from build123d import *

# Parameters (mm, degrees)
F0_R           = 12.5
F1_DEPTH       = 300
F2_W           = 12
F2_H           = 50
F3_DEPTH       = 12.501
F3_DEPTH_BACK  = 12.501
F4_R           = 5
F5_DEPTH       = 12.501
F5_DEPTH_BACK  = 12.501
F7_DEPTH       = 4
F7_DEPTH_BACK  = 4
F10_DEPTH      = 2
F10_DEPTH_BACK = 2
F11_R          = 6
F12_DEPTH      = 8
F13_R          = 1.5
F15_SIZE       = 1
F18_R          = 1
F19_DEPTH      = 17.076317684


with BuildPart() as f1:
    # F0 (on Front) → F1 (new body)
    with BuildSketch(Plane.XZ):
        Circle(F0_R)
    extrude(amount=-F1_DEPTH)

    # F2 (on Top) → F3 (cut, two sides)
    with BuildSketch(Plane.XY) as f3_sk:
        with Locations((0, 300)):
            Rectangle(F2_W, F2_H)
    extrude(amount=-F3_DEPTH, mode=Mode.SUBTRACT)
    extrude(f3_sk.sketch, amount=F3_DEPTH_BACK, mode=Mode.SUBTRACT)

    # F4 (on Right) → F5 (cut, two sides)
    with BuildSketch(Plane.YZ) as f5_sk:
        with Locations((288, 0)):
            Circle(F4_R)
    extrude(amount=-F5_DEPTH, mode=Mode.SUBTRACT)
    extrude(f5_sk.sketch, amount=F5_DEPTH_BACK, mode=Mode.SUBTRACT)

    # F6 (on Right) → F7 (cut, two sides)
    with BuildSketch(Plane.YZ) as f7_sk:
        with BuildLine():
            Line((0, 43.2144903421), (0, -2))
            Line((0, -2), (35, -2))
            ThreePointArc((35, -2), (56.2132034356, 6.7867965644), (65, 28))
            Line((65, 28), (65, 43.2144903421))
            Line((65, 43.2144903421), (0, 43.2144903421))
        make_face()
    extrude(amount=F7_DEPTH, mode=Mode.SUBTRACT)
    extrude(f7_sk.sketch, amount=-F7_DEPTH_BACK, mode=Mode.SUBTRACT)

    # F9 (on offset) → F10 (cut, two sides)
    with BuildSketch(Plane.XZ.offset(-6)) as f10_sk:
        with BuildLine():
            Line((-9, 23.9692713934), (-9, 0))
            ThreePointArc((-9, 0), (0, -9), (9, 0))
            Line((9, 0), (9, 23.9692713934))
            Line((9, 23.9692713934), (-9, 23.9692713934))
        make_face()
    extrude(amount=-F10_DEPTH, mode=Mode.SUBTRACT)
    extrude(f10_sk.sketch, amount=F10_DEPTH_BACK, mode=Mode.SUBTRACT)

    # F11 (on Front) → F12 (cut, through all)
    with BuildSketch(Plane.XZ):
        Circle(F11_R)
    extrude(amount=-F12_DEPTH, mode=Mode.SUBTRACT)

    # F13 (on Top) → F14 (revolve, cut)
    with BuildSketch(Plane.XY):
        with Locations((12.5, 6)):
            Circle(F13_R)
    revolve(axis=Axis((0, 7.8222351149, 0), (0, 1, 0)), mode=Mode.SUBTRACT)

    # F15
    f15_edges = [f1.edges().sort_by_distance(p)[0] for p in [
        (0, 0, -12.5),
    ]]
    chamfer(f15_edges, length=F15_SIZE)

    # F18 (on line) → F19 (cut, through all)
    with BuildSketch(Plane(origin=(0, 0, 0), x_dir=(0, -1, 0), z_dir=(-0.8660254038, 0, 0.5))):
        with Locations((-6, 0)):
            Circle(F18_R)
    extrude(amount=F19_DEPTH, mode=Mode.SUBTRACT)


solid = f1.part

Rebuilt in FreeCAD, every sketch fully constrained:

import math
import FreeCAD as App
import Part
import Sketcher
Q = App.Units.Quantity


def edges_at(feature, points):
    """Names of the edges that pass closest to the given points."""
    edges = feature.Shape.Edges
    near = lambda p: min(range(len(edges)), key=lambda i: edges[i].distToShape(Part.Vertex(*p))[0])
    return sorted({f"Edge{near(p) + 1}" for p in points})

doc = App.newDocument("Part")
body = doc.addObject("PartDesign::Body", "Body")

sketch1 = body.newObject("Sketcher::SketchObject", "Sketch")
sketch1.AttachmentSupport = (doc.getObject("XZ_Plane"), [""])
sketch1.MapMode = "FlatFace"
sketch1.addGeometry(Part.Circle(App.Vector(0, 0, 0), App.Vector(0, 0, 1), 12.5), False)
sketch1.addConstraint(Sketcher.Constraint("Coincident", 0, 3, -1, 1))
sketch1.addConstraint(Sketcher.Constraint("Diameter", 0, Q("25 mm")))
pad1 = body.newObject("PartDesign::Pad", "Pad")
pad1.Profile = sketch1
pad1.Length = 300
pad1.Reversed = True

sketch2 = body.newObject("Sketcher::SketchObject", "Sketch001")
sketch2.AttachmentSupport = (doc.getObject("XY_Plane"), [""])
sketch2.MapMode = "FlatFace"
sketch2.addGeometry(Part.LineSegment(App.Vector(-6, 325, 0), App.Vector(-6, 275, 0)), False)
sketch2.addGeometry(Part.LineSegment(App.Vector(-6, 275, 0), App.Vector(6, 275, 0)), False)
sketch2.addGeometry(Part.LineSegment(App.Vector(6, 275, 0), App.Vector(6, 325, 0)), False)
sketch2.addGeometry(Part.LineSegment(App.Vector(6, 325, 0), App.Vector(-6, 325, 0)), False)
sketch2.addConstraint(Sketcher.Constraint("Coincident", 0, 2, 1, 1))
sketch2.addConstraint(Sketcher.Constraint("Coincident", 1, 2, 2, 1))
sketch2.addConstraint(Sketcher.Constraint("Coincident", 2, 2, 3, 1))
sketch2.addConstraint(Sketcher.Constraint("Coincident", 3, 2, 0, 1))
sketch2.addConstraint(Sketcher.Constraint("Vertical", 0))
sketch2.addConstraint(Sketcher.Constraint("Horizontal", 1))
sketch2.addConstraint(Sketcher.Constraint("Vertical", 2))
sketch2.addConstraint(Sketcher.Constraint("Horizontal", 3))
sketch2.addConstraint(Sketcher.Constraint("DistanceX", 1, 1, 1, 2, Q("12 mm")))
sketch2.addConstraint(Sketcher.Constraint("DistanceY", 0, 2, 0, 1, Q("50 mm")))
sketch2.addConstraint(Sketcher.Constraint("DistanceX", 0, 2, -1, 1, Q("6 mm")))
sketch2.addConstraint(Sketcher.Constraint("DistanceY", -1, 1, 0, 2, Q("275 mm")))
pocket1 = body.newObject("PartDesign::Pocket", "Pocket")
pocket1.Profile = sketch2
pocket1.Type = "ThroughAll"
pocket1.Midplane = True

sketch3 = body.newObject("Sketcher::SketchObject", "Sketch002")
sketch3.AttachmentSupport = (doc.getObject("YZ_Plane"), [""])
sketch3.MapMode = "FlatFace"
sketch3.addGeometry(Part.Circle(App.Vector(288, 0, 0), App.Vector(0, 0, 1), 5), False)
sketch3.addConstraint(Sketcher.Constraint("PointOnObject", 0, 3, -1))
sketch3.addConstraint(Sketcher.Constraint("Diameter", 0, Q("10 mm")))
sketch3.addConstraint(Sketcher.Constraint("DistanceX", -1, 1, 0, 3, Q("288 mm")))
pocket2 = body.newObject("PartDesign::Pocket", "Pocket001")
pocket2.Profile = sketch3
pocket2.Type = "ThroughAll"
pocket2.Midplane = True

sketch4 = body.newObject("Sketcher::SketchObject", "Sketch003")
sketch4.AttachmentSupport = (doc.getObject("YZ_Plane"), [""])
sketch4.MapMode = "FlatFace"
sketch4.addGeometry(Part.LineSegment(App.Vector(0, 43.21449, 0), App.Vector(0, -2, 0)), False)
sketch4.addGeometry(Part.LineSegment(App.Vector(0, -2, 0), App.Vector(35, -2, 0)), False)
sketch4.addGeometry(Part.ArcOfCircle(Part.Circle(App.Vector(35, 28, 0), App.Vector(0, 0, 1), 30), math.radians(-90), math.radians(0)), False)
sketch4.addGeometry(Part.LineSegment(App.Vector(65, 28, 0), App.Vector(65, 43.21449, 0)), False)
sketch4.addGeometry(Part.LineSegment(App.Vector(65, 43.21449, 0), App.Vector(0, 43.21449, 0)), False)
sketch4.addConstraint(Sketcher.Constraint("Coincident", 0, 2, 1, 1))
sketch4.addConstraint(Sketcher.Constraint("Tangent", 1, 2, 2, 1))
sketch4.addConstraint(Sketcher.Constraint("Tangent", 2, 2, 3, 1))
sketch4.addConstraint(Sketcher.Constraint("Coincident", 3, 2, 4, 1))
sketch4.addConstraint(Sketcher.Constraint("Coincident", 4, 2, 0, 1))
sketch4.addConstraint(Sketcher.Constraint("Vertical", 0))
sketch4.addConstraint(Sketcher.Constraint("Horizontal", 1))
sketch4.addConstraint(Sketcher.Constraint("Vertical", 3))
sketch4.addConstraint(Sketcher.Constraint("Horizontal", 4))
sketch4.addConstraint(Sketcher.Constraint("PointOnObject", 0, 2, -2))
sketch4.addConstraint(Sketcher.Constraint("Radius", 2, Q("30 mm")))
sketch4.addConstraint(Sketcher.Constraint("DistanceX", 1, 1, 1, 2, Q("35 mm")))
sketch4.addConstraint(Sketcher.Constraint("DistanceY", -1, 1, 2, 3, Q("28 mm")))
sketch4.addConstraint(Sketcher.Constraint("DistanceY", 0, 2, 0, 1, Q("45.21449 mm")))
pocket3 = body.newObject("PartDesign::Pocket", "Pocket002")
pocket3.Profile = sketch4
pocket3.Type = "TwoLengths"
pocket3.Length = 4
pocket3.Length2 = 4
pocket3.Reversed = True

sketch5 = body.newObject("Sketcher::SketchObject", "Sketch004")
sketch5.AttachmentSupport = (doc.getObject("XZ_Plane"), [""])
sketch5.MapMode = "FlatFace"
sketch5.AttachmentOffset = App.Placement(App.Vector(0, 0, -6), App.Rotation())
sketch5.addGeometry(Part.LineSegment(App.Vector(-9, 23.969271, 0), App.Vector(-9, 0, 0)), False)
sketch5.addGeometry(Part.ArcOfCircle(Part.Circle(App.Vector(0, 0, 0), App.Vector(0, 0, 1), 9), math.radians(180), math.radians(360)), False)
sketch5.addGeometry(Part.LineSegment(App.Vector(9, 0, 0), App.Vector(9, 23.969271, 0)), False)
sketch5.addGeometry(Part.LineSegment(App.Vector(9, 23.969271, 0), App.Vector(-9, 23.969271, 0)), False)
sketch5.addConstraint(Sketcher.Constraint("Tangent", 0, 2, 1, 1))
sketch5.addConstraint(Sketcher.Constraint("Tangent", 1, 2, 2, 1))
sketch5.addConstraint(Sketcher.Constraint("Coincident", 2, 2, 3, 1))
sketch5.addConstraint(Sketcher.Constraint("Coincident", 3, 2, 0, 1))
sketch5.addConstraint(Sketcher.Constraint("Vertical", 0))
sketch5.addConstraint(Sketcher.Constraint("Vertical", 2))
sketch5.addConstraint(Sketcher.Constraint("Horizontal", 3))
sketch5.addConstraint(Sketcher.Constraint("Coincident", 1, 3, -1, 1))
sketch5.addConstraint(Sketcher.Constraint("Radius", 1, Q("9 mm")))
sketch5.addConstraint(Sketcher.Constraint("DistanceY", 0, 2, 0, 1, Q("23.969271 mm")))
pocket4 = body.newObject("PartDesign::Pocket", "Pocket003")
pocket4.Profile = sketch5
pocket4.Type = "TwoLengths"
pocket4.Length = 2
pocket4.Length2 = 2

sketch6 = body.newObject("Sketcher::SketchObject", "Sketch005")
sketch6.AttachmentSupport = (doc.getObject("XZ_Plane"), [""])
sketch6.MapMode = "FlatFace"
sketch6.addGeometry(Part.Circle(App.Vector(0, 0, 0), App.Vector(0, 0, 1), 6), False)
sketch6.addConstraint(Sketcher.Constraint("Coincident", 0, 3, -1, 1))
sketch6.addConstraint(Sketcher.Constraint("Diameter", 0, Q("12 mm")))
pocket5 = body.newObject("PartDesign::Pocket", "Pocket004")
pocket5.Profile = sketch6
pocket5.Length = 8

sketch7 = body.newObject("Sketcher::SketchObject", "Sketch006")
sketch7.AttachmentSupport = (doc.getObject("XY_Plane"), [""])
sketch7.MapMode = "FlatFace"
sketch7.addGeometry(Part.Circle(App.Vector(12.5, 6, 0), App.Vector(0, 0, 1), 1.5), False)
sketch7.addConstraint(Sketcher.Constraint("Diameter", 0, Q("3 mm")))
sketch7.addConstraint(Sketcher.Constraint("DistanceY", -1, 1, 0, 3, Q("6 mm")))
sketch7.addConstraint(Sketcher.Constraint("DistanceX", -1, 1, 0, 3, Q("12.5 mm")))
groove = body.newObject("PartDesign::Groove", "Groove")
groove.Profile = sketch7
groove.ReferenceAxis = (sketch7, ["V_Axis"])
groove.Angle = 360
doc.recompute()

chamfer = body.newObject("PartDesign::Chamfer", "Chamfer")
chamfer.Base = (groove, edges_at(groove, [(0, 0, -12.5)]))
chamfer.Size = 1

sketch8 = body.newObject("Sketcher::SketchObject", "Sketch007")
sketch8.Placement = App.Placement(App.Vector(0, 0, 0), App.Rotation(App.Vector(0, -1, 0), App.Vector(0.5, 0, 0.866025404), App.Vector(-0.866025404, 0, 0.5), "ZXY"))
sketch8.addGeometry(Part.Circle(App.Vector(-6, 0, 0), App.Vector(0, 0, 1), 1), False)
sketch8.addConstraint(Sketcher.Constraint("PointOnObject", 0, 3, -1))
sketch8.addConstraint(Sketcher.Constraint("Diameter", 0, Q("2 mm")))
sketch8.addConstraint(Sketcher.Constraint("DistanceX", 0, 3, -1, 1, Q("6 mm")))
pocket6 = body.newObject("PartDesign::Pocket", "Pocket005")
pocket6.Profile = sketch8
pocket6.Type = "ThroughAll"
pocket6.Reversed = True

doc.recompute()
